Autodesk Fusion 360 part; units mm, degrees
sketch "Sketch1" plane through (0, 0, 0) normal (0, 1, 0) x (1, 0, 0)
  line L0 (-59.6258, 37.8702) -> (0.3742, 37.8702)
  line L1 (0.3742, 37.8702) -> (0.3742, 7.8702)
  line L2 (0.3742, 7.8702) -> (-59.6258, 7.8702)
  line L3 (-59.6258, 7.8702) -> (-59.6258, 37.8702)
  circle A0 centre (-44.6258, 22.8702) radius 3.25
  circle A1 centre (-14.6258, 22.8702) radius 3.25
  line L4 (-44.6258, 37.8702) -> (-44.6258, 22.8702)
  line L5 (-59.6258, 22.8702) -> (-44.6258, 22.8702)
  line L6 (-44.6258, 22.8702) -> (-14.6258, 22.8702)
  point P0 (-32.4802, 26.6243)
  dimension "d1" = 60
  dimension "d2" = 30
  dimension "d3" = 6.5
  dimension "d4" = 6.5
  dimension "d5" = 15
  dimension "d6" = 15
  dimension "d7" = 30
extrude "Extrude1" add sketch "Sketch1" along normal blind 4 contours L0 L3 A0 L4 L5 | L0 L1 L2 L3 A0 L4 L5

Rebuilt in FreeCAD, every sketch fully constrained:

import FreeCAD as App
import Part
import Sketcher

doc = App.newDocument("Part")
body = doc.addObject("PartDesign::Body", "Body")

# Sketch on XZ plane
sketch1 = body.newObject("Sketcher::SketchObject", "Sketch")
sketch1.AttachmentSupport = (doc.getObject("XZ_Plane"), [""])
sketch1.MapMode = "FlatFace"
sketch1.addGeometry(Part.LineSegment(App.Vector(-59.6258, -37.8702, 0), App.Vector(-59.6258, -7.8702, 0)), False)
sketch1.addGeometry(Part.LineSegment(App.Vector(-59.6258, -7.8702, 0), App.Vector(0.3742, -7.8702, 0)), False)
sketch1.addGeometry(Part.LineSegment(App.Vector(0.3742, -7.8702, 0), App.Vector(0.3742, -37.8702, 0)), False)
sketch1.addGeometry(Part.LineSegment(App.Vector(0.3742, -37.8702, 0), App.Vector(-59.6258, -37.8702, 0)), False)
sketch1.addGeometry(Part.Circle(App.Vector(-44.6258, -22.8702, 0), App.Vector(0, 0, 1), 3.25), False)
sketch1.addGeometry(Part.Circle(App.Vector(-14.6258, -22.8702, 0), App.Vector(0, 0, 1), 3.25), False)
sketch1.addConstraint(Sketcher.Constraint("Coincident", 0, 2, 1, 1))
sketch1.addConstraint(Sketcher.Constraint("Coincident", 1, 2, 2, 1))
sketch1.addConstraint(Sketcher.Constraint("Coincident", 2, 2, 3, 1))
sketch1.addConstraint(Sketcher.Constraint("Coincident", 3, 2, 0, 1))
sketch1.addConstraint(Sketcher.Constraint("Vertical", 0))
sketch1.addConstraint(Sketcher.Constraint("Horizontal", 1))
sketch1.addConstraint(Sketcher.Constraint("Vertical", 2))
sketch1.addConstraint(Sketcher.Constraint("Horizontal", 3))
sketch1.addConstraint(Sketcher.Constraint("Equal", 4, 5))
sketch1.addConstraint(Sketcher.Constraint("Horizontal", 4, 3, 5, 3))
sketch1.addConstraint(Sketcher.Constraint("Diameter", 4, 6.5))
sketch1.addConstraint(Sketcher.Constraint("DistanceX", 1, 1, 1, 2, 60.0))
sketch1.addConstraint(Sketcher.Constraint("DistanceY", 0, 1, 0, 2, 30.0))
sketch1.addConstraint(Sketcher.Constraint("DistanceX", 4, 3, 5, 3, 30.0))
sketch1.addConstraint(Sketcher.Constraint("DistanceX", 0, 2, 4, 3, 15.0))
sketch1.addConstraint(Sketcher.Constraint("DistanceY", 4, 3, 0, 2, 15.0))
sketch1.addConstraint(Sketcher.Constraint("DistanceX", 4, 3, -1, 1, 44.6258))
sketch1.addConstraint(Sketcher.Constraint("DistanceY", 4, 3, -1, 1, 22.8702))
pad1 = body.newObject("PartDesign::Pad", "Pad")
pad1.Profile = sketch1
pad1.Length = 4
pad1.Reversed = True

doc.recompute()
